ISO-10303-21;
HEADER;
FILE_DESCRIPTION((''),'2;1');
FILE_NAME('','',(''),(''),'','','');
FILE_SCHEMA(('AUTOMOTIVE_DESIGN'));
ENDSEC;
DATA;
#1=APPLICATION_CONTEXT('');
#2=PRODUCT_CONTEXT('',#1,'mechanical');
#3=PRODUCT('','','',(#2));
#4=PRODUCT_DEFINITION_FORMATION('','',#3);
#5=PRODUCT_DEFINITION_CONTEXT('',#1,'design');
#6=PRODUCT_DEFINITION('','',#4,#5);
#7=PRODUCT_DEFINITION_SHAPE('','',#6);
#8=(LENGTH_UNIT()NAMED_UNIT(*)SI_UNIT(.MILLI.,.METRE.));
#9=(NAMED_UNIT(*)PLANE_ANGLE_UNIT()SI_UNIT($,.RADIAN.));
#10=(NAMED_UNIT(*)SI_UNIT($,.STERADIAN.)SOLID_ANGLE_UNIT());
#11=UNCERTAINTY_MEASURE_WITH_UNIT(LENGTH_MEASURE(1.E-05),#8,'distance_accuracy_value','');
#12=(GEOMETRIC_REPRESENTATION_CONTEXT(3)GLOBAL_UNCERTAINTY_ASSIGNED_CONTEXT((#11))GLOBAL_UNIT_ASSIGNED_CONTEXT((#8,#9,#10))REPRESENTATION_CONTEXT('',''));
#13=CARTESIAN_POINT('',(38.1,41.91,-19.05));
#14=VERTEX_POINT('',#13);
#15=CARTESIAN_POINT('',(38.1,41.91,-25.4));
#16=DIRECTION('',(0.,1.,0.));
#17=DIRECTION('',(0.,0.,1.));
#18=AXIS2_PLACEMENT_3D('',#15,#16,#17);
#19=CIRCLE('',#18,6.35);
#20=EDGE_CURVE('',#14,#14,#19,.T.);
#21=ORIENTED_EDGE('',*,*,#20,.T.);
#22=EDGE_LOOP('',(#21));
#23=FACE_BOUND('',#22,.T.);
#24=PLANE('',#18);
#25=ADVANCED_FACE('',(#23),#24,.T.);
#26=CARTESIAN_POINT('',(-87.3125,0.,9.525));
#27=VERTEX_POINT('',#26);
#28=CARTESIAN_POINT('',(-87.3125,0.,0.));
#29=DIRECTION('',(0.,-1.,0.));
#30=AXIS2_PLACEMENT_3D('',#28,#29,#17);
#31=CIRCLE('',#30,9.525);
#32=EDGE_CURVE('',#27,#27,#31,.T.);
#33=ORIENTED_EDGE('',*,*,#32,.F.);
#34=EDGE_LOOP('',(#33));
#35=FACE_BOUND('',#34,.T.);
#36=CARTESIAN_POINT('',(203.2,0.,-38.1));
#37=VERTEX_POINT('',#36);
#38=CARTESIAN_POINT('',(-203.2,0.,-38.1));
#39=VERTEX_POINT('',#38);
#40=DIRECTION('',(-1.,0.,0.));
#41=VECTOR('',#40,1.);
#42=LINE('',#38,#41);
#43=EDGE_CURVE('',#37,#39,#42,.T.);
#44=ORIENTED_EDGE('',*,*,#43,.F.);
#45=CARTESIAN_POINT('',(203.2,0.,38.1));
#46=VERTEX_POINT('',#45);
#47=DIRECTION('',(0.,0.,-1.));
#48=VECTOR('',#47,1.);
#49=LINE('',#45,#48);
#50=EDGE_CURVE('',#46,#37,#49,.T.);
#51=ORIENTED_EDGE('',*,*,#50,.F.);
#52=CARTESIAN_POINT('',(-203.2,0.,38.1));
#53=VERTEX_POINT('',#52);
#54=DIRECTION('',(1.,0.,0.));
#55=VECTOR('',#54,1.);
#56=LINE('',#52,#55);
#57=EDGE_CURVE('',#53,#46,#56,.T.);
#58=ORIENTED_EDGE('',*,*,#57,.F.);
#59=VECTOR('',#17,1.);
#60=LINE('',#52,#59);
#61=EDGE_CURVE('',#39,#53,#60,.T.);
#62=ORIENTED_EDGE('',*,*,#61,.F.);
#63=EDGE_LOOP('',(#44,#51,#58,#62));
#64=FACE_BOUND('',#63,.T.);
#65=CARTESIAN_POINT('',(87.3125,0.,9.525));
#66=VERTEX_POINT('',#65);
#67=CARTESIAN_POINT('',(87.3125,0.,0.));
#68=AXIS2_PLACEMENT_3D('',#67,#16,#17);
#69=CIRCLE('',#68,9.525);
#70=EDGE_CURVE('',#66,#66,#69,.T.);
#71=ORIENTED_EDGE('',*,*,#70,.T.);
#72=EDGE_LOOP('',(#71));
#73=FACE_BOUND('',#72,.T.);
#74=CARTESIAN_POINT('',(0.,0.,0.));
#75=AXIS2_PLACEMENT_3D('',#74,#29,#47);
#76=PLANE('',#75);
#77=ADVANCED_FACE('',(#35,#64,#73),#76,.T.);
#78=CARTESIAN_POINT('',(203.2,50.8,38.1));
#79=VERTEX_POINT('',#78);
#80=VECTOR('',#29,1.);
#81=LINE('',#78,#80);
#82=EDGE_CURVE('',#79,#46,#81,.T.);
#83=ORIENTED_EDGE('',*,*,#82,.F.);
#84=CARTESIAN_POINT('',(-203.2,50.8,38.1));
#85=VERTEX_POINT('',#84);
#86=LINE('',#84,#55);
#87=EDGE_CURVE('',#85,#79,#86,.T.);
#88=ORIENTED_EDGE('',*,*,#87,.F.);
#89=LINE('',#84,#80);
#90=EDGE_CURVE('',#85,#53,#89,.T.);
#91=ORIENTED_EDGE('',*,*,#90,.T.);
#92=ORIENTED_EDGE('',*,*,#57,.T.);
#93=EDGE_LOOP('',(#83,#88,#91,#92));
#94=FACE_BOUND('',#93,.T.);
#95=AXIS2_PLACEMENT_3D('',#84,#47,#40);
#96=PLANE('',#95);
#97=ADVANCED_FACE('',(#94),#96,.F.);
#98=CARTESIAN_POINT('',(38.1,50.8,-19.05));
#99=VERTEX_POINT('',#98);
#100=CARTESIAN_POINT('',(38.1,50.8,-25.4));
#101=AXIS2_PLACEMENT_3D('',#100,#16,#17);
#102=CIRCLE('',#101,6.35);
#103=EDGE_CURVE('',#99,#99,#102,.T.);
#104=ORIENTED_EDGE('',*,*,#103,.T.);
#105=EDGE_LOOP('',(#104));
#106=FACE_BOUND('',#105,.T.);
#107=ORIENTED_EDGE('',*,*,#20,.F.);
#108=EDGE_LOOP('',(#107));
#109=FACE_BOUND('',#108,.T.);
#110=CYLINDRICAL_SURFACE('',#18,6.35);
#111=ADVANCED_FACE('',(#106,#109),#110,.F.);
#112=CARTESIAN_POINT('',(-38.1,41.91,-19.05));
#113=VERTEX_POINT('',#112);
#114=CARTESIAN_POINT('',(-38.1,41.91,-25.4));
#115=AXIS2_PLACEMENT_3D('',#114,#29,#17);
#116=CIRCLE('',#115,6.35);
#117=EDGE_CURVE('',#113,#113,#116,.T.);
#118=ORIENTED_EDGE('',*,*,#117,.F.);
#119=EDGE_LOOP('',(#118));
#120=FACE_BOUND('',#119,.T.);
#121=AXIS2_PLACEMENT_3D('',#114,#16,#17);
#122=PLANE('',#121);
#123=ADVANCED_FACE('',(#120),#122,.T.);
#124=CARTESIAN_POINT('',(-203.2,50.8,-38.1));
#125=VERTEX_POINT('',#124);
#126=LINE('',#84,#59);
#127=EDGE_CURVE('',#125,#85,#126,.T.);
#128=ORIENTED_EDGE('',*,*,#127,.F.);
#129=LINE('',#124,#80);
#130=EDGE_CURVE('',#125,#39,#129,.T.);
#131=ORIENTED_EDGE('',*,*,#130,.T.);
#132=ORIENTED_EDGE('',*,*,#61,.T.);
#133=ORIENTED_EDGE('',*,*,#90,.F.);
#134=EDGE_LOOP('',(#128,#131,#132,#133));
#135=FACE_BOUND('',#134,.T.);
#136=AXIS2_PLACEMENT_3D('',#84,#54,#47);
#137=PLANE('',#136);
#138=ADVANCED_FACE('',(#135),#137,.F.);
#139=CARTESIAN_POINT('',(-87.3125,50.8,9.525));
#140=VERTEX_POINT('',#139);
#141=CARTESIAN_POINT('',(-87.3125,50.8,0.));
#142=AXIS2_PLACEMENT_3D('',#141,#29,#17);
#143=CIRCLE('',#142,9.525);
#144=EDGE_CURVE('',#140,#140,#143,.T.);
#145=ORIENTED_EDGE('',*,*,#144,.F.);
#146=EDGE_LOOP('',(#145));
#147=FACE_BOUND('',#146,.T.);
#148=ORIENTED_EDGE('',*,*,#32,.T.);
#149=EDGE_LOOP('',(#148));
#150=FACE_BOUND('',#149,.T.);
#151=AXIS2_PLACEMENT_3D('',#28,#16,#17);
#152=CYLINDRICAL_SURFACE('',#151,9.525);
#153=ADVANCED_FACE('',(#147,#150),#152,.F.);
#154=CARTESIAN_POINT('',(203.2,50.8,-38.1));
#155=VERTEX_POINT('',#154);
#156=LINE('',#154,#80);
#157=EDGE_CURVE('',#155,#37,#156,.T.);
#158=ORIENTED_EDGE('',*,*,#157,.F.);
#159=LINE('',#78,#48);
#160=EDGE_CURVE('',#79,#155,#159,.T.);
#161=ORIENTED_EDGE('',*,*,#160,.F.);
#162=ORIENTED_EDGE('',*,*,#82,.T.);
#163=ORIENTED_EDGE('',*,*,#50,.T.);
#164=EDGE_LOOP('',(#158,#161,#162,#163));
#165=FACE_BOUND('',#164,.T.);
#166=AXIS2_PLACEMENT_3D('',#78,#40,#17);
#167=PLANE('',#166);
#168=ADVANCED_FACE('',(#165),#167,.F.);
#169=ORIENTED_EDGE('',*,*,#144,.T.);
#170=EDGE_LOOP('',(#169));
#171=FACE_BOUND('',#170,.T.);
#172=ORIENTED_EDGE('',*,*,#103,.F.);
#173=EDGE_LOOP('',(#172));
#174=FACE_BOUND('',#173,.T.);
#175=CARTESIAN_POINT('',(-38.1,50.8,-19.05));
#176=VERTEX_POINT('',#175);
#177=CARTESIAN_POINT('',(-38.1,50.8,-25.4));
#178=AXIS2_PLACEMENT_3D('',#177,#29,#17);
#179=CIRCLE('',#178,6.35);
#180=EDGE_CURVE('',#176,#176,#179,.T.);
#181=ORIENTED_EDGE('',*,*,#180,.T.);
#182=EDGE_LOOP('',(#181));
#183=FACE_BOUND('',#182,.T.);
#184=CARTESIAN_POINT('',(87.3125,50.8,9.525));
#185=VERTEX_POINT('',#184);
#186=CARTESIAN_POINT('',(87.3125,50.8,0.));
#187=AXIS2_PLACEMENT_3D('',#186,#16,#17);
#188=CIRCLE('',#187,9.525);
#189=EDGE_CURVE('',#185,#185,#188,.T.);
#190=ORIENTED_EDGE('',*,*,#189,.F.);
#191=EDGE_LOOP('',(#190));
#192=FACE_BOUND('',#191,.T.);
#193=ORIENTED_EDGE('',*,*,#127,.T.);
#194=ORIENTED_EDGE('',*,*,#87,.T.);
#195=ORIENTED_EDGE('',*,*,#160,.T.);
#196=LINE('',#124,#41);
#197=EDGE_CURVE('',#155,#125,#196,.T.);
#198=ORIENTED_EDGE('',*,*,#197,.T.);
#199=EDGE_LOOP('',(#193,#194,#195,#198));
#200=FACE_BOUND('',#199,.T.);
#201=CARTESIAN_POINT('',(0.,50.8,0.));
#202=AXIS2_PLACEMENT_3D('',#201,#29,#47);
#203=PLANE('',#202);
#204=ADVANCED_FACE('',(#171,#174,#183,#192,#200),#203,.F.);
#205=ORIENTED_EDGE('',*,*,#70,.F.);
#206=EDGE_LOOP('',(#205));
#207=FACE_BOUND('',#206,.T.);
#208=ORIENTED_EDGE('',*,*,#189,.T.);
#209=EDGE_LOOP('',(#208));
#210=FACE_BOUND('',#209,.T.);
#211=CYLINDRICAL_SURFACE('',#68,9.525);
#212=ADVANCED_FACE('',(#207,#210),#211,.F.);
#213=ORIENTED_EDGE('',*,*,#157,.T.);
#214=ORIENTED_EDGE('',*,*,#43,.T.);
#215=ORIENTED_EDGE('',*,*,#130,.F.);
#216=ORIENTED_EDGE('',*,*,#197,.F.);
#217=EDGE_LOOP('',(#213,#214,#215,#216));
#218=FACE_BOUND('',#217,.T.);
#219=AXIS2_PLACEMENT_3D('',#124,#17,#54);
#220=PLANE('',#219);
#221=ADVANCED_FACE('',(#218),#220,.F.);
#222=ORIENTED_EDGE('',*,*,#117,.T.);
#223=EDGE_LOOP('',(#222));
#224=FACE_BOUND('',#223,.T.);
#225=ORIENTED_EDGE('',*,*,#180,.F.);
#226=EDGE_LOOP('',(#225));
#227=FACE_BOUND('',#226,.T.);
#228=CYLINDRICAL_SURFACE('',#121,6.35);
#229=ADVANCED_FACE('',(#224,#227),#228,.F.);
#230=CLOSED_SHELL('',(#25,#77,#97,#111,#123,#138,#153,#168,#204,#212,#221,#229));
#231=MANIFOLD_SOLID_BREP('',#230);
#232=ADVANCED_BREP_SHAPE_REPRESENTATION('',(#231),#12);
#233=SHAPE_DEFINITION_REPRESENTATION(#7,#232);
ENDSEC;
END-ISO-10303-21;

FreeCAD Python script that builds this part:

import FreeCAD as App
import Part
import Sketcher
from FreeCAD import Vector
Q = App.Units.Quantity


def add_polygon(sketch, points):
    """Adds a closed chain of lines whose ends are joined by coincident constraints."""
    first, n = sketch.GeometryCount, len(points)
    for a, b in zip(points, points[1:] + points[:1]):
        sketch.addGeometry(Part.LineSegment(App.Vector(*a, 0), App.Vector(*b, 0)), False)
    for i in range(n):
        sketch.addConstraint(Sketcher.Constraint("Coincident", first + i, 2, first + (i + 1) % n, 1))

doc = App.newDocument("Part")
body = doc.addObject("PartDesign::Body", "Body")

sketch1 = body.newObject("Sketcher::SketchObject", "Sketch")
sketch1.AttachmentSupport = (doc.getObject("XZ_Plane"), [""])
sketch1.MapMode = "FlatFace"
add_polygon(sketch1, [(-203, -38), (-203, 38), (203, 38), (203, -38)])
sketch1.addConstraint(Sketcher.Constraint("Vertical", 0))
sketch1.addConstraint(Sketcher.Constraint("Horizontal", 1))
sketch1.addConstraint(Sketcher.Constraint("Vertical", 2))
sketch1.addConstraint(Sketcher.Constraint("Horizontal", 3))
sketch1.addConstraint(Sketcher.Constraint("Symmetric", 0, 2, 2, 2, -1, 1))
sketch1.addConstraint(Sketcher.Constraint("DistanceX", 1, 1, 1, 2, Q("16 in")))
sketch1.addConstraint(Sketcher.Constraint("DistanceY", 0, 1, 0, 2, Q("3 in")))
pad1 = body.newObject("PartDesign::Pad", "Pad")
pad1.Profile = sketch1
pad1.Length = Q("2 in")
pad1.Reversed = True

sketch2 = body.newObject("Sketcher::SketchObject", "Sketch001")
sketch2.AttachmentSupport = (doc.getObject("XZ_Plane"), [""])
sketch2.MapMode = "FlatFace"
sketch2.AttachmentOffset = App.Placement(Vector(0, 0, -2 * 25.4), App.Rotation())
sketch2.addGeometry(Part.Circle(Vector(87, 0, 0), Vector(0, 0, 1), 10), False)
sketch2.addConstraint(Sketcher.Constraint("PointOnObject", 0, 3, -1))
sketch2.addConstraint(Sketcher.Constraint("Diameter", 0, Q("0.75 in")))
sketch2.addConstraint(Sketcher.Constraint("DistanceX", -1, 1, 0, 3, Q("3.4375 in")))
pocket1 = body.newObject("PartDesign::Pocket", "Pocket")
pocket1.Profile = sketch2
pocket1.Length = Q("2 in")
pocket1.Reversed = True

sketch3 = body.newObject("Sketcher::SketchObject", "Sketch002")
sketch3.AttachmentSupport = (doc.getObject("XZ_Plane"), [""])
sketch3.MapMode = "FlatFace"
sketch3.AttachmentOffset = App.Placement(Vector(0, 0, -2 * 25.4), App.Rotation())
sketch3.addGeometry(Part.Circle(Vector(38, -25, 0), Vector(0, 0, 1), 6), False)
sketch3.addConstraint(Sketcher.Constraint("Diameter", 0, Q("0.5 in")))
sketch3.addConstraint(Sketcher.Constraint("DistanceY", 0, 3, -1, 1, Q("1 in")))
sketch3.addConstraint(Sketcher.Constraint("DistanceX", -1, 1, 0, 3, Q("1.5 in")))
pocket2 = body.newObject("PartDesign::Pocket", "Pocket001")
pocket2.Profile = sketch3
pocket2.Length = Q("0.35 in")
pocket2.Reversed = True
doc.recompute()

mirrored = body.newObject("PartDesign::Mirrored", "Mirrored")
mirrored.Originals = [pocket1, pocket2]
mirrored.MirrorPlane = (doc.getObject("YZ_Plane"), [""])
body.Tip = mirrored

doc.recompute()
